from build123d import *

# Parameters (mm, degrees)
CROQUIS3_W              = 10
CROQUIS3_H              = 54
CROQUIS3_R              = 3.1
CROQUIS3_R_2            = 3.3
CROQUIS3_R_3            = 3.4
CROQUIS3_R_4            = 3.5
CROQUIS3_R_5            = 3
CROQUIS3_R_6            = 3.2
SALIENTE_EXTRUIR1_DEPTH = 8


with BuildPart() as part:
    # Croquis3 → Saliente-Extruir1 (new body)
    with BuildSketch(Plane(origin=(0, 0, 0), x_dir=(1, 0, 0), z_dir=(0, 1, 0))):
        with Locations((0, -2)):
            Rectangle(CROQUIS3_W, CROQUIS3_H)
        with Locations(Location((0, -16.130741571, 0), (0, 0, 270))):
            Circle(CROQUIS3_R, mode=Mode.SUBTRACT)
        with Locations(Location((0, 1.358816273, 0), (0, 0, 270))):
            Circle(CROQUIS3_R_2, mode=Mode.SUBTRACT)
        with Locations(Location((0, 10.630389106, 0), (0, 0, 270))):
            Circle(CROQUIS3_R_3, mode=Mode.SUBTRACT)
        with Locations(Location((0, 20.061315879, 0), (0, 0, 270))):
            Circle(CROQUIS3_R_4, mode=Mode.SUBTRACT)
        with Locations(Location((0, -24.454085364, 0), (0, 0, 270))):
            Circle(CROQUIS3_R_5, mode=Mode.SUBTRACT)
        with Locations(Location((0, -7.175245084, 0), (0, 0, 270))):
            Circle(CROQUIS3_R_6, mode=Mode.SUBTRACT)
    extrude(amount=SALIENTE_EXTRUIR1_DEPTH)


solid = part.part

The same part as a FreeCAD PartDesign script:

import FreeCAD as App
import Part
import Sketcher

V = App.Vector
Q = App.Units.Quantity


def add_polygon(sketch, points):
    """Adds a closed chain of lines whose ends are joined by coincident constraints."""
    first, n = sketch.GeometryCount, len(points)
    for a, b in zip(points, points[1:] + points[:1]):
        sketch.addGeometry(Part.LineSegment(App.Vector(*a, 0), App.Vector(*b, 0)), False)
    for i in range(n):
        sketch.addConstraint(Sketcher.Constraint("Coincident", first + i, 2, first + (i + 1) % n, 1))

doc = App.newDocument("Part")
body = doc.addObject("PartDesign::Body", "Body")

# Sketch on XZ plane
sketch1 = body.newObject("Sketcher::SketchObject", "Sketch")
sketch1.AttachmentSupport = (doc.getObject("XZ_Plane"), [""])
sketch1.MapMode = "FlatFace"
add_polygon(sketch1, [(-5, -25), (-5, 29), (5, 29), (5, -25)])  # lines 0-3
sketch1.addGeometry(Part.Circle(V(0, 24.5, 0), V(0, 0, 1), 3), False)  # 4
sketch1.addGeometry(Part.Circle(V(0, 16.1, 0), V(0, 0, 1), 3.1), False)  # 5
sketch1.addGeometry(Part.Circle(V(0, 7.2, 0), V(0, 0, 1), 3.2), False)  # 6
sketch1.addGeometry(Part.Circle(V(0, -1.4, 0), V(0, 0, 1), 3.3), False)  # 7
sketch1.addGeometry(Part.Circle(V(0, -10.6, 0), V(0, 0, 1), 3.4), False)  # 8
sketch1.addGeometry(Part.Circle(V(0, -20.1, 0), V(0, 0, 1), 3.5), False)  # 9
sketch1.addConstraint(Sketcher.Constraint("Vertical", 0))
sketch1.addConstraint(Sketcher.Constraint("Horizontal", 1))
sketch1.addConstraint(Sketcher.Constraint("Vertical", 2))
sketch1.addConstraint(Sketcher.Constraint("Horizontal", 3))
sketch1.addConstraint(Sketcher.Constraint("PointOnObject", 4, 3, -2))
sketch1.addConstraint(Sketcher.Constraint("PointOnObject", 5, 3, -2))
sketch1.addConstraint(Sketcher.Constraint("PointOnObject", 6, 3, -2))
sketch1.addConstraint(Sketcher.Constraint("PointOnObject", 7, 3, -2))
sketch1.addConstraint(Sketcher.Constraint("PointOnObject", 8, 3, -2))
sketch1.addConstraint(Sketcher.Constraint("PointOnObject", 9, 3, -2))
sketch1.addConstraint(Sketcher.Constraint("Diameter", 4, Q("6 mm")))
sketch1.addConstraint(Sketcher.Constraint("Diameter", 9, Q("7 mm")))
sketch1.addConstraint(Sketcher.Constraint("Diameter", 5, Q("6.2 mm")))
sketch1.addConstraint(Sketcher.Constraint("Diameter", 6, Q("6.4 mm")))
sketch1.addConstraint(Sketcher.Constraint("Diameter", 7, Q("6.6 mm")))
sketch1.addConstraint(Sketcher.Constraint("Diameter", 8, Q("6.8 mm")))
sketch1.addConstraint(Sketcher.Constraint("DistanceX", 1, 1, 1, 2, Q("10 mm")))
sketch1.addConstraint(Sketcher.Constraint("DistanceY", 0, 1, 0, 2, Q("54 mm")))
sketch1.addConstraint(Sketcher.Constraint("DistanceX", 0, 2, -1, 1, Q("5 mm")))
sketch1.addConstraint(Sketcher.Constraint("DistanceY", -1, 1, 0, 2, Q("29 mm")))
sketch1.addConstraint(Sketcher.Constraint("DistanceY", 7, 3, 4, 3, Q("25.812902 mm")))
sketch1.addConstraint(Sketcher.Constraint("DistanceY", 9, 3, 7, 3, Q("18.7025 mm")))
sketch1.addConstraint(Sketcher.Constraint("DistanceY", -1, 1, 5, 3, Q("16.130742 mm")))
sketch1.addConstraint(Sketcher.Constraint("DistanceY", 8, 3, -1, 1, Q("10.630389 mm")))
sketch1.addConstraint(Sketcher.Constraint("DistanceY", 6, 3, 4, 3, Q("17.27884 mm")))
sketch1.addConstraint(Sketcher.Constraint("DistanceY", -1, 1, 4, 3, Q("24.454085 mm")))
pad1 = body.newObject("PartDesign::Pad", "Pad")
pad1.Profile = sketch1
pad1.Length = 8
pad1.Reversed = True

doc.recompute()
